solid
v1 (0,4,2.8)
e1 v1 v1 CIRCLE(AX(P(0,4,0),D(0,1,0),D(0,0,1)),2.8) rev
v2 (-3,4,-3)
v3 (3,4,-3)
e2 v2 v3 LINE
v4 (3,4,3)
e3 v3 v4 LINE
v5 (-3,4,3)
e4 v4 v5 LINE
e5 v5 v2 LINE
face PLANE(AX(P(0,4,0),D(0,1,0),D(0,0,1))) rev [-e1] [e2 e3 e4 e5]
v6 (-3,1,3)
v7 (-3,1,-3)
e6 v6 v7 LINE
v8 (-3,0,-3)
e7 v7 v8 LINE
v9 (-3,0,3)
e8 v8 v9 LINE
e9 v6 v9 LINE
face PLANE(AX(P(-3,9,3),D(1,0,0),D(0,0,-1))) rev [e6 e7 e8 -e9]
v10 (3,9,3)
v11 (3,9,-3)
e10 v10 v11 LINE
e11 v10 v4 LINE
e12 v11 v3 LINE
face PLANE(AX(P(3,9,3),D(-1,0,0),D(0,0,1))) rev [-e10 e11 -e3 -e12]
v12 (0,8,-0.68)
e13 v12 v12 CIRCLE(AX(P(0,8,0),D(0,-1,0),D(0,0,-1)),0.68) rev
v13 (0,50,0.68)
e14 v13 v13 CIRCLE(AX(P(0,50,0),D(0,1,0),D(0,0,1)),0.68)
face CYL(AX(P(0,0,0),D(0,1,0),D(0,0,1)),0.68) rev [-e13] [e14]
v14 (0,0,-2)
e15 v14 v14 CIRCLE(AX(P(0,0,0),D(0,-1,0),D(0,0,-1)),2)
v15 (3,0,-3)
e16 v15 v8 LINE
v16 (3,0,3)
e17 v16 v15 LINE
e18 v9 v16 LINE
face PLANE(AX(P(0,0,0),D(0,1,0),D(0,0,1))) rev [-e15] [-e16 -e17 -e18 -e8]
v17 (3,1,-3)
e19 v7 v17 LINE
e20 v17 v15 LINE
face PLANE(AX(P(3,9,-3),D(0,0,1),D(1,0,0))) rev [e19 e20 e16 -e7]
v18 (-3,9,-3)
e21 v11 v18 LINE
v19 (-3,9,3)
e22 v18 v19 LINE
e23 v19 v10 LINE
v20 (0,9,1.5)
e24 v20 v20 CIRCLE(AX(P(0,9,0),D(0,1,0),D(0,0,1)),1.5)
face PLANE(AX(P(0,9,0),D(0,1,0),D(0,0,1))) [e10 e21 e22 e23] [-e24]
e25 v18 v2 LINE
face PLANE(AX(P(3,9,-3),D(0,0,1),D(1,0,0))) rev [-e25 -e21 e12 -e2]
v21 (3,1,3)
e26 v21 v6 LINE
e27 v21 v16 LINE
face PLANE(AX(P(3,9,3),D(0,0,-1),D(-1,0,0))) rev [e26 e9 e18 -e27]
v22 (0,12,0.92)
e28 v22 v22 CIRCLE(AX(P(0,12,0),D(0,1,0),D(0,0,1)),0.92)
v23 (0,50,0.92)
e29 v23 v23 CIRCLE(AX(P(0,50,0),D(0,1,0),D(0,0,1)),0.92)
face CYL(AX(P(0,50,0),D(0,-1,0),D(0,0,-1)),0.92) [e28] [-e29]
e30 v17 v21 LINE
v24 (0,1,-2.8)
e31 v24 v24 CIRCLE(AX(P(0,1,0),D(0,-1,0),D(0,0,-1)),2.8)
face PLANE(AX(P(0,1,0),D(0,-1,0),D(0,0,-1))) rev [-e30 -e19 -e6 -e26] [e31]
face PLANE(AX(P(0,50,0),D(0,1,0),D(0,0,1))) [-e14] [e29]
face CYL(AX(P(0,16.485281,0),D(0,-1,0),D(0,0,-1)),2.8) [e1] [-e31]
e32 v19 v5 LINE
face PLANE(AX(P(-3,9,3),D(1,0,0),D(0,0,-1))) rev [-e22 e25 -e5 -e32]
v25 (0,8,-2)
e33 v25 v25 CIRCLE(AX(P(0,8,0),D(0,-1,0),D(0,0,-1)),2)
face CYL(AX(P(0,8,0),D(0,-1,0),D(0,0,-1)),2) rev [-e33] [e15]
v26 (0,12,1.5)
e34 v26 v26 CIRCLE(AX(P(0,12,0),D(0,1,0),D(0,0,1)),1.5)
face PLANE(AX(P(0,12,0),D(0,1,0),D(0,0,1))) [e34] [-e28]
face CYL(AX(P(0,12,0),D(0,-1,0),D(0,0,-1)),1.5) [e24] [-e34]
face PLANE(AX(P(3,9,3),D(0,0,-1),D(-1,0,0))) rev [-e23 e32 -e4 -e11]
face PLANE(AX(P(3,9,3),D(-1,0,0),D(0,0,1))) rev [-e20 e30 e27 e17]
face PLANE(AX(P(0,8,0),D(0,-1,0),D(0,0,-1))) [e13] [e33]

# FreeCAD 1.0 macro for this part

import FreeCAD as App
import Part
import Sketcher

V = App.Vector
Q = App.Units.Quantity

doc = App.newDocument("Part")
body = doc.addObject("PartDesign::Body", "Body")

# Sketch on XZ plane
sketch1 = body.newObject("Sketcher::SketchObject", "Sketch")
sketch1.AttachmentSupport = (doc.getObject("XZ_Plane"), [""])
sketch1.MapMode = "FlatFace"
sketch1.addGeometry([
    Part.LineSegment(V(-3, -3, 0), V(-3, 3, 0)),
    Part.LineSegment(V(-3, 3, 0), V(3, 3, 0)),
    Part.LineSegment(V(3, 3, 0), V(3, -3, 0)),
    Part.LineSegment(V(3, -3, 0), V(-3, -3, 0)),
], False)
sketch1.addConstraint([
    Sketcher.Constraint("Coincident", 0, 2, 1, 1),
    Sketcher.Constraint("Coincident", 1, 2, 2, 1),
    Sketcher.Constraint("Coincident", 2, 2, 3, 1),
    Sketcher.Constraint("Coincident", 3, 2, 0, 1),
    Sketcher.Constraint("Vertical", 0),
    Sketcher.Constraint("Horizontal", 1),
    Sketcher.Constraint("Vertical", 2),
    Sketcher.Constraint("Horizontal", 3),
    Sketcher.Constraint("Symmetric", 0, 2, 2, 2, -1, 1),
    Sketcher.Constraint("Equal", 3, 0),
    Sketcher.Constraint("DistanceX", 1, 1, 1, 2, Q("6 mm")),
])
pad1 = body.newObject("PartDesign::Pad", "Pad")
pad1.Profile = sketch1
pad1.Length = 9
pad1.Reversed = True

# Sketch on XZ plane
sketch2 = body.newObject("Sketcher::SketchObject", "Sketch001")
sketch2.AttachmentSupport = (doc.getObject("XZ_Plane"), [""])
sketch2.MapMode = "FlatFace"
sketch2.AttachmentOffset = App.Placement(V(0, 0, -9), App.Rotation())
sketch2.addGeometry(Part.Circle(V(0, 0, 0), V(0, 0, 1), 1.5), False)
sketch2.addConstraint([
    Sketcher.Constraint("Coincident", 0, 3, -1, 1),
    Sketcher.Constraint("Diameter", 0, Q("3 mm")),
])
pad2 = body.newObject("PartDesign::Pad", "Pad001")
pad2.Profile = sketch2
pad2.Length = 3
pad2.Reversed = True

# Sketch on XZ plane
sketch3 = body.newObject("Sketcher::SketchObject", "Sketch002")
sketch3.AttachmentSupport = (doc.getObject("XZ_Plane"), [""])
sketch3.MapMode = "FlatFace"
sketch3.AttachmentOffset = App.Placement(V(0, 0, -12), App.Rotation())
sketch3.addGeometry(Part.Circle(V(0, 0, 0), V(0, 0, 1), 0.7), False)
sketch3.addConstraint([
    Sketcher.Constraint("Coincident", 0, 3, -1, 1),
    Sketcher.Constraint("Diameter", 0, Q("1.36 mm")),
])
pocket1 = body.newObject("PartDesign::Pocket", "Pocket")
pocket1.Profile = sketch3
pocket1.Type = "ThroughAll"
pocket1.Midplane = True

# Sketch on XZ plane
sketch4 = body.newObject("Sketcher::SketchObject", "Sketch003")
sketch4.AttachmentSupport = (doc.getObject("XZ_Plane"), [""])
sketch4.MapMode = "FlatFace"
sketch4.AttachmentOffset = App.Placement(V(0, 0, -50), App.Rotation())
sketch4.addGeometry([
    Part.Circle(V(0, 0, 0), V(0, 0, 1), 0.9),
    Part.Circle(V(0, 0, 0), V(0, 0, 1), 0.7),
], False)
sketch4.addConstraint([
    Sketcher.Constraint("Coincident", 0, 3, -1, 1),
    Sketcher.Constraint("Coincident", 1, 3, -1, 1),
    Sketcher.Constraint("Diameter", 0, Q("1.84 mm")),
    Sketcher.Constraint("Diameter", 1, Q("1.36 mm")),
])
pad3 = body.newObject("PartDesign::Pad", "Pad002")
pad3.Profile = sketch4
pad3.Length = 38

# Sketch on XZ plane
sketch5 = body.newObject("Sketcher::SketchObject", "Sketch004")
sketch5.AttachmentSupport = (doc.getObject("XZ_Plane"), [""])
sketch5.MapMode = "FlatFace"
sketch5.addGeometry(Part.Circle(V(0, 0, 0), V(0, 0, 1), 2), False)
sketch5.addConstraint([
    Sketcher.Constraint("Coincident", 0, 3, -1, 1),
    Sketcher.Constraint("Diameter", 0, Q("4 mm")),
])
pocket2 = body.newObject("PartDesign::Pocket", "Pocket001")
pocket2.Profile = sketch5
pocket2.Length = 8

# Sketch on XZ plane
sketch6 = body.newObject("Sketcher::SketchObject", "Sketch005")
sketch6.AttachmentSupport = (doc.getObject("XZ_Plane"), [""])
sketch6.MapMode = "FlatFace"
sketch6.AttachmentOffset = App.Placement(V(0, 0, -1), App.Rotation())
sketch6.addGeometry([
    Part.LineSegment(V(-3, 3, 0), V(-3, -3, 0)),  # 0
    Part.LineSegment(V(-3, -3, 0), V(3, -3, 0)),  # 1
    Part.LineSegment(V(3, -3, 0), V(3, 3, 0)),  # 2
    Part.LineSegment(V(3, 3, 0), V(-3, 3, 0)),  # 3
    Part.Circle(V(0, 0, 0), V(0, 0, 1), 2.8),  # 4
], False)
sketch6.addConstraint([
    Sketcher.Constraint("Coincident", 0, 2, 1, 1),
    Sketcher.Constraint("Coincident", 1, 2, 2, 1),
    Sketcher.Constraint("Coincident", 2, 2, 3, 1),
    Sketcher.Constraint("Coincident", 3, 2, 0, 1),
    Sketcher.Constraint("Vertical", 0),
    Sketcher.Constraint("Horizontal", 1),
    Sketcher.Constraint("Vertical", 2),
    Sketcher.Constraint("Horizontal", 3),
    Sketcher.Constraint("Coincident", 4, 3, -1, 1),
    Sketcher.Constraint("Symmetric", 0, 2, 2, 2, -1, 1),
    Sketcher.Constraint("Equal", 3, 0),
    Sketcher.Constraint("Diameter", 4, Q("5.6 mm")),
    Sketcher.Constraint("DistanceX", 1, 1, 1, 2, Q("6 mm")),
])
pocket3 = body.newObject("PartDesign::Pocket", "Pocket002")
pocket3.Profile = sketch6
pocket3.Length = 3

doc.recompute()
